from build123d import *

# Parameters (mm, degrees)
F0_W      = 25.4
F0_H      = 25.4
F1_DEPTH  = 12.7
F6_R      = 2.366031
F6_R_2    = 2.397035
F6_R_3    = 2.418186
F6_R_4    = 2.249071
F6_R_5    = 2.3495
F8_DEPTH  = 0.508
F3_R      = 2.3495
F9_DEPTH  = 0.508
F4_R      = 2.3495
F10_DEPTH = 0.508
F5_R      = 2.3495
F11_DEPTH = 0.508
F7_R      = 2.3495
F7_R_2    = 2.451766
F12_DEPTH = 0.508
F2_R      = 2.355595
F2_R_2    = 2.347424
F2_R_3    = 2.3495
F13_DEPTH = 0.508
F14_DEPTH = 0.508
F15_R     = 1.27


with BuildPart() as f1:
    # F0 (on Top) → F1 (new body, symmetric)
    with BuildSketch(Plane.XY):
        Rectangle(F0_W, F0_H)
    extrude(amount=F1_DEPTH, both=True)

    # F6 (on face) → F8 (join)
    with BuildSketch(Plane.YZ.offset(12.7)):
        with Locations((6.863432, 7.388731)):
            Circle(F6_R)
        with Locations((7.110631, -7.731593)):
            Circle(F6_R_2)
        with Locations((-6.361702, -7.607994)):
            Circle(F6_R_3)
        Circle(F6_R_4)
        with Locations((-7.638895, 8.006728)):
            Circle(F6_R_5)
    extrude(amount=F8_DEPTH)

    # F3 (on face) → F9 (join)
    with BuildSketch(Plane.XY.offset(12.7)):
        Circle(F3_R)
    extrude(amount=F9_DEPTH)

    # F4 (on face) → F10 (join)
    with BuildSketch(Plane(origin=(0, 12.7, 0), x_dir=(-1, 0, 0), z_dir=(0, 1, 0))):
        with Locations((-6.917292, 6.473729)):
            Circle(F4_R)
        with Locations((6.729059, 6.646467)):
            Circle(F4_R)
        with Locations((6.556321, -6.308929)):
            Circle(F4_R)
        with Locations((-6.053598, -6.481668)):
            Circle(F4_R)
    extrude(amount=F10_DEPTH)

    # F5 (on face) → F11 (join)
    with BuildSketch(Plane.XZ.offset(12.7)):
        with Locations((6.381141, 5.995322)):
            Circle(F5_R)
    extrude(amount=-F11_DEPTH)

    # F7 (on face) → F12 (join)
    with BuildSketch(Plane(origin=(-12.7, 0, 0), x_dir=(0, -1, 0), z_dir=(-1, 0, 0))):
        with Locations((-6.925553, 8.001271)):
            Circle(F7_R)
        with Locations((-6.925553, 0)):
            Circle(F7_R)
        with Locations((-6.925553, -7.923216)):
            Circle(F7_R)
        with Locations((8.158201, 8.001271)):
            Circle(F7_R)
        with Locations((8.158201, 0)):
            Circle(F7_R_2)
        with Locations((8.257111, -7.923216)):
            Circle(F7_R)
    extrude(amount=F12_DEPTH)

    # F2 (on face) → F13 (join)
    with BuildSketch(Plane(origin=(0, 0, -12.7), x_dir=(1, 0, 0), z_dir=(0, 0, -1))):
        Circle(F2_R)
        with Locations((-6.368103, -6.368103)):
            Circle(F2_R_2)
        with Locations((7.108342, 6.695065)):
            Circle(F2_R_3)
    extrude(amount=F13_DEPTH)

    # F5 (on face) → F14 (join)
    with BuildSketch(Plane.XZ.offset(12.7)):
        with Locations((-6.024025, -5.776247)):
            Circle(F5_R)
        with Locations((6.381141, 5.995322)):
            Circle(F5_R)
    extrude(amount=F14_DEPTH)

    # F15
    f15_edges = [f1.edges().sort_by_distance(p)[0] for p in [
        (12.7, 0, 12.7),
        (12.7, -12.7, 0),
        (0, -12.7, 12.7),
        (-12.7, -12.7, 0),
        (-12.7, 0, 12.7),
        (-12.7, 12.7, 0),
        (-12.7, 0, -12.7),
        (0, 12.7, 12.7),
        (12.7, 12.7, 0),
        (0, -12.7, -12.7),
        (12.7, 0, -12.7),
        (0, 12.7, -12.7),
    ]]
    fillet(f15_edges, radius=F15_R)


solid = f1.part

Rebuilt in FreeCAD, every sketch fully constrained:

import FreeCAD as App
import Part
import Sketcher
from FreeCAD import Vector
Q = App.Units.Quantity


def edges_at(feature, points):
    """Names of the edges that pass closest to the given points."""
    edges = feature.Shape.Edges
    near = lambda p: min(range(len(edges)), key=lambda i: edges[i].distToShape(Part.Vertex(*p))[0])
    return sorted({f"Edge{near(p) + 1}" for p in points})


def add_polygon(sketch, points):
    """Adds a closed chain of lines whose ends are joined by coincident constraints."""
    first, n = sketch.GeometryCount, len(points)
    for a, b in zip(points, points[1:] + points[:1]):
        sketch.addGeometry(Part.LineSegment(App.Vector(*a, 0), App.Vector(*b, 0)), False)
    for i in range(n):
        sketch.addConstraint(Sketcher.Constraint("Coincident", first + i, 2, first + (i + 1) % n, 1))

doc = App.newDocument("Part")
body = doc.addObject("PartDesign::Body", "Body")

# Sketch on XY plane
sketch1 = doc.addObject("Sketcher::SketchObject", "Sketch")
body.addObject(sketch1)
sketch1.AttachmentSupport = (doc.XY_Plane, [""])
sketch1.MapMode = "FlatFace"
add_polygon(sketch1, [(-12.7, 12.7), (-12.7, -12.7), (12.7, -12.7), (12.7, 12.7)])  # lines 0-3
sketch1.addConstraint([
    Sketcher.Constraint("Vertical", 0),
    Sketcher.Constraint("Horizontal", 1),
    Sketcher.Constraint("Vertical", 2),
    Sketcher.Constraint("Horizontal", 3),
    Sketcher.Constraint("Symmetric", 0, 2, 2, 2, -1, 1),
    Sketcher.Constraint("Equal", 3, 0),
    Sketcher.Constraint("DistanceX", 1, 1, 1, 2, Q("1 in")),
])
pad1 = doc.addObject("PartDesign::Pad", "Pad")
body.addObject(pad1)
pad1.Profile = sketch1
pad1.Length = Q("1 in")
pad1.Midplane = True

# Sketch on YZ plane
sketch2 = doc.addObject("Sketcher::SketchObject", "Sketch001")
body.addObject(sketch2)
sketch2.AttachmentSupport = (doc.YZ_Plane, [""])
sketch2.MapMode = "FlatFace"
sketch2.AttachmentOffset = App.Placement(Vector(0, 0, 0.5 * 25.4), App.Rotation())
sketch2.addGeometry([
    Part.Circle(Vector(6.863432, 7.388731, 0), Vector(0, 0, 1), 2.366031),  # 0
    Part.Circle(Vector(7.110631, -7.731593, 0), Vector(0, 0, 1), 2.397035),  # 1
    Part.Circle(Vector(-6.361702, -7.607994, 0), Vector(0, 0, 1), 2.418186),  # 2
    Part.Circle(Vector(0, 0, 0), Vector(0, 0, 1), 2.249071),  # 3
    Part.Circle(Vector(-7.638895, 8.006728, 0), Vector(0, 0, 1), 2.3495),  # 4
], False)
sketch2.addConstraint([
    Sketcher.Constraint("Coincident", 3, 3, -1, 1),
    Sketcher.Constraint("Diameter", 4, Q("0.185 in")),
    Sketcher.Constraint("Diameter", 1, 4.79407),
    Sketcher.Constraint("Diameter", 3, 4.498142),
    Sketcher.Constraint("Diameter", 0, 4.732062),
    Sketcher.Constraint("Diameter", 2, 4.836372),
    Sketcher.Constraint("DistanceX", 0, 3, 1, 3, 0.247199),
    Sketcher.Constraint("DistanceY", 1, 3, 2, 3, 0.123599),
    Sketcher.Constraint("DistanceY", -1, 1, 0, 3, 7.388731),
    Sketcher.Constraint("DistanceX", -1, 1, 1, 3, 7.110631),
    Sketcher.Constraint("DistanceY", -1, 1, 4, 3, 8.006728),
    Sketcher.Constraint("DistanceY", 1, 3, 4, 3, 15.738321),
    Sketcher.Constraint("DistanceX", 2, 3, -1, 1, 6.361702),
    Sketcher.Constraint("DistanceX", 4, 3, -1, 1, 7.638895),
])
pad2 = doc.addObject("PartDesign::Pad", "Pad001")
body.addObject(pad2)
pad2.Profile = sketch2
pad2.Length = Q("0.02 in")

# Sketch on XY plane
sketch3 = doc.addObject("Sketcher::SketchObject", "Sketch002")
body.addObject(sketch3)
sketch3.AttachmentSupport = (doc.XY_Plane, [""])
sketch3.MapMode = "FlatFace"
sketch3.AttachmentOffset = App.Placement(Vector(0, 0, 0.5 * 25.4), App.Rotation())
sketch3.addGeometry(Part.Circle(Vector(0, 0, 0), Vector(0, 0, 1), 2.3495), False)
sketch3.addConstraint([
    Sketcher.Constraint("Coincident", 0, 3, -1, 1),
    Sketcher.Constraint("Diameter", 0, Q("0.185 in")),
])
pad3 = doc.addObject("PartDesign::Pad", "Pad002")
body.addObject(pad3)
pad3.Profile = sketch3
pad3.Length = Q("0.02 in")

# Sketch on XZ plane
sketch4 = doc.addObject("Sketcher::SketchObject", "Sketch003")
body.addObject(sketch4)
sketch4.AttachmentSupport = (doc.XZ_Plane, [""])
sketch4.MapMode = "FlatFace"
sketch4.AttachmentOffset = App.Placement(Vector(0, 0, -0.5 * 25.4), App.Rotation())
sketch4.addGeometry([
    Part.Circle(Vector(6.917292, 6.473729, 0), Vector(0, 0, 1), 2.3495),
    Part.Circle(Vector(-6.729059, 6.646467, 0), Vector(0, 0, 1), 2.3495),
    Part.Circle(Vector(-6.556321, -6.308929, 0), Vector(0, 0, 1), 2.3495),
    Part.Circle(Vector(6.053598, -6.481668, 0), Vector(0, 0, 1), 2.3495),
], False)
sketch4.addConstraint([
    Sketcher.Constraint("Equal", 0, 1),
    Sketcher.Constraint("Equal", 1, 2),
    Sketcher.Constraint("Equal", 2, 3),
    Sketcher.Constraint("Diameter", 0, Q("0.185 in")),
    Sketcher.Constraint("DistanceX", -1, 1, 0, 3, 6.917292),
    Sketcher.Constraint("DistanceY", -1, 1, 0, 3, 6.473729),
    Sketcher.Constraint("DistanceX", 1, 3, -1, 1, 6.729059),
    Sketcher.Constraint("DistanceX", 2, 3, -1, 1, 6.556321),
    Sketcher.Constraint("DistanceY", 2, 3, -1, 1, 6.308929),
    Sketcher.Constraint("DistanceY", 0, 3, 1, 3, 0.172738),
    Sketcher.Constraint("DistanceX", 2, 3, 3, 3, 12.609919),
    Sketcher.Constraint("DistanceY", 3, 3, 2, 3, 0.172739),
])
pad4 = doc.addObject("PartDesign::Pad", "Pad003")
body.addObject(pad4)
pad4.Profile = sketch4
pad4.Length = Q("0.02 in")
pad4.Reversed = True

# Sketch on XZ plane
sketch5 = doc.addObject("Sketcher::SketchObject", "Sketch004")
body.addObject(sketch5)
sketch5.AttachmentSupport = (doc.XZ_Plane, [""])
sketch5.MapMode = "FlatFace"
sketch5.AttachmentOffset = App.Placement(Vector(0, 0, 0.5 * 25.4), App.Rotation())
sketch5.addGeometry(Part.Circle(Vector(6.381141, 5.995322, 0), Vector(0, 0, 1), 2.3495), False)
sketch5.addConstraint([
    Sketcher.Constraint("Diameter", 0, Q("0.185 in")),
    Sketcher.Constraint("DistanceX", -1, 1, 0, 3, 6.381141),
    Sketcher.Constraint("DistanceY", -1, 1, 0, 3, 5.995322),
])
pad5 = doc.addObject("PartDesign::Pad", "Pad004")
body.addObject(pad5)
pad5.Profile = sketch5
pad5.Length = Q("0.02 in")
pad5.Reversed = True

# Sketch on YZ plane
sketch6 = doc.addObject("Sketcher::SketchObject", "Sketch005")
body.addObject(sketch6)
sketch6.AttachmentSupport = (doc.YZ_Plane, [""])
sketch6.MapMode = "FlatFace"
sketch6.AttachmentOffset = App.Placement(Vector(0, 0, -0.5 * 25.4), App.Rotation())
sketch6.addGeometry([
    Part.Circle(Vector(6.925553, 8.001271, 0), Vector(0, 0, 1), 2.3495),  # 0
    Part.Circle(Vector(6.925553, 0, 0), Vector(0, 0, 1), 2.3495),  # 1
    Part.Circle(Vector(6.925553, -7.923216, 0), Vector(0, 0, 1), 2.3495),  # 2
    Part.Circle(Vector(-8.158201, 8.001271, 0), Vector(0, 0, 1), 2.3495),  # 3
    Part.Circle(Vector(-8.158201, 0, 0), Vector(0, 0, 1), 2.451766),  # 4
    Part.Circle(Vector(-8.257111, -7.923216, 0), Vector(0, 0, 1), 2.3495),  # 5
], False)
sketch6.addConstraint([
    Sketcher.Constraint("Equal", 0, 1),
    Sketcher.Constraint("Equal", 1, 2),
    Sketcher.Constraint("Equal", 2, 3),
    Sketcher.Constraint("Equal", 3, 5),
    Sketcher.Constraint("PointOnObject", 1, 3, -1),
    Sketcher.Constraint("PointOnObject", 4, 3, -1),
    Sketcher.Constraint("Horizontal", 0, 3, 3, 3),
    Sketcher.Constraint("Horizontal", 2, 3, 5, 3),
    Sketcher.Constraint("Vertical", 0, 3, 1, 3),
    Sketcher.Constraint("Vertical", 1, 3, 2, 3),
    Sketcher.Constraint("Vertical", 3, 3, 4, 3),
    Sketcher.Constraint("Diameter", 0, Q("0.185 in")),
    Sketcher.Constraint("Diameter", 4, 4.903532),
    Sketcher.Constraint("DistanceX", 3, 3, -1, 1, 8.158201),
    Sketcher.Constraint("DistanceY", -1, 1, 0, 3, 8.001271),
    Sketcher.Constraint("DistanceX", 5, 3, -1, 1, 8.257111),
    Sketcher.Constraint("DistanceX", -1, 1, 0, 3, 6.925553),
    Sketcher.Constraint("DistanceY", 2, 3, -1, 1, 7.923216),
])
pad6 = doc.addObject("PartDesign::Pad", "Pad005")
body.addObject(pad6)
pad6.Profile = sketch6
pad6.Length = Q("0.02 in")
pad6.Reversed = True

# Sketch on XY plane
sketch7 = doc.addObject("Sketcher::SketchObject", "Sketch006")
body.addObject(sketch7)
sketch7.AttachmentSupport = (doc.XY_Plane, [""])
sketch7.MapMode = "FlatFace"
sketch7.AttachmentOffset = App.Placement(Vector(0, 0, -0.5 * 25.4), App.Rotation())
sketch7.addGeometry([
    Part.Circle(Vector(0, 0, 0), Vector(0, 0, 1), 2.355595),
    Part.Circle(Vector(-6.368103, 6.368103, 0), Vector(0, 0, 1), 2.347424),
    Part.Circle(Vector(7.108342, -6.695065, 0), Vector(0, 0, 1), 2.3495),
], False)
sketch7.addConstraint([
    Sketcher.Constraint("Coincident", 0, 3, -1, 1),
    Sketcher.Constraint("Diameter", 2, Q("0.185 in")),
    Sketcher.Constraint("Diameter", 0, 4.71119),
    Sketcher.Constraint("Diameter", 1, 4.694848),
    Sketcher.Constraint("DistanceX", 1, 3, -1, 1, 6.368103),
    Sketcher.Constraint("DistanceY", -1, 1, 1, 3, 6.368103),
    Sketcher.Constraint("DistanceX", -1, 1, 2, 3, 7.108342),
    Sketcher.Constraint("DistanceY", 2, 3, -1, 1, 6.695065),
])
pad7 = doc.addObject("PartDesign::Pad", "Pad006")
body.addObject(pad7)
pad7.Profile = sketch7
pad7.Length = Q("0.02 in")
pad7.Reversed = True

# Sketch on XZ plane
sketch8 = doc.addObject("Sketcher::SketchObject", "Sketch007")
body.addObject(sketch8)
sketch8.AttachmentSupport = (doc.XZ_Plane, [""])
sketch8.MapMode = "FlatFace"
sketch8.AttachmentOffset = App.Placement(Vector(0, 0, 0.5 * 25.4), App.Rotation())
sketch8.addGeometry([
    Part.Circle(Vector(-6.024025, -5.776247, 0), Vector(0, 0, 1), 2.3495),
    Part.Circle(Vector(6.381141, 5.995322, 0), Vector(0, 0, 1), 2.3495),
], False)
sketch8.addConstraint([
    Sketcher.Constraint("Equal", 0, 1),
    Sketcher.Constraint("Diameter", 0, Q("0.185 in")),
    Sketcher.Constraint("DistanceX", -1, 1, 1, 3, 6.381141),
    Sketcher.Constraint("DistanceY", -1, 1, 1, 3, 5.995322),
    Sketcher.Constraint("DistanceY", 0, 3, 1, 3, 11.771569),
    Sketcher.Constraint("DistanceX", 0, 3, -1, 1, 6.024025),
])
pad8 = doc.addObject("PartDesign::Pad", "Pad007")
body.addObject(pad8)
pad8.Profile = sketch8
pad8.Length = Q("0.02 in")
doc.recompute()

fillet = doc.addObject("PartDesign::Fillet", "Fillet")
body.addObject(fillet)
fillet.Base = (pad8, edges_at(pad8, [
    (12.7, 0, 12.7),
    (12.7, -12.7, 0),
    (0, -12.7, 12.7),
    (-12.7, -12.7, 0),
    (-12.7, 0, 12.7),
    (-12.7, 12.7, 0),
    (-12.7, 0, -12.7),
    (0, 12.7, 12.7),
    (12.7, 12.7, 0),
    (0, -12.7, -12.7),
    (12.7, 0, -12.7),
    (0, 12.7, -12.7),
]))
fillet.Radius = Q("0.05 in")

doc.recompute()
